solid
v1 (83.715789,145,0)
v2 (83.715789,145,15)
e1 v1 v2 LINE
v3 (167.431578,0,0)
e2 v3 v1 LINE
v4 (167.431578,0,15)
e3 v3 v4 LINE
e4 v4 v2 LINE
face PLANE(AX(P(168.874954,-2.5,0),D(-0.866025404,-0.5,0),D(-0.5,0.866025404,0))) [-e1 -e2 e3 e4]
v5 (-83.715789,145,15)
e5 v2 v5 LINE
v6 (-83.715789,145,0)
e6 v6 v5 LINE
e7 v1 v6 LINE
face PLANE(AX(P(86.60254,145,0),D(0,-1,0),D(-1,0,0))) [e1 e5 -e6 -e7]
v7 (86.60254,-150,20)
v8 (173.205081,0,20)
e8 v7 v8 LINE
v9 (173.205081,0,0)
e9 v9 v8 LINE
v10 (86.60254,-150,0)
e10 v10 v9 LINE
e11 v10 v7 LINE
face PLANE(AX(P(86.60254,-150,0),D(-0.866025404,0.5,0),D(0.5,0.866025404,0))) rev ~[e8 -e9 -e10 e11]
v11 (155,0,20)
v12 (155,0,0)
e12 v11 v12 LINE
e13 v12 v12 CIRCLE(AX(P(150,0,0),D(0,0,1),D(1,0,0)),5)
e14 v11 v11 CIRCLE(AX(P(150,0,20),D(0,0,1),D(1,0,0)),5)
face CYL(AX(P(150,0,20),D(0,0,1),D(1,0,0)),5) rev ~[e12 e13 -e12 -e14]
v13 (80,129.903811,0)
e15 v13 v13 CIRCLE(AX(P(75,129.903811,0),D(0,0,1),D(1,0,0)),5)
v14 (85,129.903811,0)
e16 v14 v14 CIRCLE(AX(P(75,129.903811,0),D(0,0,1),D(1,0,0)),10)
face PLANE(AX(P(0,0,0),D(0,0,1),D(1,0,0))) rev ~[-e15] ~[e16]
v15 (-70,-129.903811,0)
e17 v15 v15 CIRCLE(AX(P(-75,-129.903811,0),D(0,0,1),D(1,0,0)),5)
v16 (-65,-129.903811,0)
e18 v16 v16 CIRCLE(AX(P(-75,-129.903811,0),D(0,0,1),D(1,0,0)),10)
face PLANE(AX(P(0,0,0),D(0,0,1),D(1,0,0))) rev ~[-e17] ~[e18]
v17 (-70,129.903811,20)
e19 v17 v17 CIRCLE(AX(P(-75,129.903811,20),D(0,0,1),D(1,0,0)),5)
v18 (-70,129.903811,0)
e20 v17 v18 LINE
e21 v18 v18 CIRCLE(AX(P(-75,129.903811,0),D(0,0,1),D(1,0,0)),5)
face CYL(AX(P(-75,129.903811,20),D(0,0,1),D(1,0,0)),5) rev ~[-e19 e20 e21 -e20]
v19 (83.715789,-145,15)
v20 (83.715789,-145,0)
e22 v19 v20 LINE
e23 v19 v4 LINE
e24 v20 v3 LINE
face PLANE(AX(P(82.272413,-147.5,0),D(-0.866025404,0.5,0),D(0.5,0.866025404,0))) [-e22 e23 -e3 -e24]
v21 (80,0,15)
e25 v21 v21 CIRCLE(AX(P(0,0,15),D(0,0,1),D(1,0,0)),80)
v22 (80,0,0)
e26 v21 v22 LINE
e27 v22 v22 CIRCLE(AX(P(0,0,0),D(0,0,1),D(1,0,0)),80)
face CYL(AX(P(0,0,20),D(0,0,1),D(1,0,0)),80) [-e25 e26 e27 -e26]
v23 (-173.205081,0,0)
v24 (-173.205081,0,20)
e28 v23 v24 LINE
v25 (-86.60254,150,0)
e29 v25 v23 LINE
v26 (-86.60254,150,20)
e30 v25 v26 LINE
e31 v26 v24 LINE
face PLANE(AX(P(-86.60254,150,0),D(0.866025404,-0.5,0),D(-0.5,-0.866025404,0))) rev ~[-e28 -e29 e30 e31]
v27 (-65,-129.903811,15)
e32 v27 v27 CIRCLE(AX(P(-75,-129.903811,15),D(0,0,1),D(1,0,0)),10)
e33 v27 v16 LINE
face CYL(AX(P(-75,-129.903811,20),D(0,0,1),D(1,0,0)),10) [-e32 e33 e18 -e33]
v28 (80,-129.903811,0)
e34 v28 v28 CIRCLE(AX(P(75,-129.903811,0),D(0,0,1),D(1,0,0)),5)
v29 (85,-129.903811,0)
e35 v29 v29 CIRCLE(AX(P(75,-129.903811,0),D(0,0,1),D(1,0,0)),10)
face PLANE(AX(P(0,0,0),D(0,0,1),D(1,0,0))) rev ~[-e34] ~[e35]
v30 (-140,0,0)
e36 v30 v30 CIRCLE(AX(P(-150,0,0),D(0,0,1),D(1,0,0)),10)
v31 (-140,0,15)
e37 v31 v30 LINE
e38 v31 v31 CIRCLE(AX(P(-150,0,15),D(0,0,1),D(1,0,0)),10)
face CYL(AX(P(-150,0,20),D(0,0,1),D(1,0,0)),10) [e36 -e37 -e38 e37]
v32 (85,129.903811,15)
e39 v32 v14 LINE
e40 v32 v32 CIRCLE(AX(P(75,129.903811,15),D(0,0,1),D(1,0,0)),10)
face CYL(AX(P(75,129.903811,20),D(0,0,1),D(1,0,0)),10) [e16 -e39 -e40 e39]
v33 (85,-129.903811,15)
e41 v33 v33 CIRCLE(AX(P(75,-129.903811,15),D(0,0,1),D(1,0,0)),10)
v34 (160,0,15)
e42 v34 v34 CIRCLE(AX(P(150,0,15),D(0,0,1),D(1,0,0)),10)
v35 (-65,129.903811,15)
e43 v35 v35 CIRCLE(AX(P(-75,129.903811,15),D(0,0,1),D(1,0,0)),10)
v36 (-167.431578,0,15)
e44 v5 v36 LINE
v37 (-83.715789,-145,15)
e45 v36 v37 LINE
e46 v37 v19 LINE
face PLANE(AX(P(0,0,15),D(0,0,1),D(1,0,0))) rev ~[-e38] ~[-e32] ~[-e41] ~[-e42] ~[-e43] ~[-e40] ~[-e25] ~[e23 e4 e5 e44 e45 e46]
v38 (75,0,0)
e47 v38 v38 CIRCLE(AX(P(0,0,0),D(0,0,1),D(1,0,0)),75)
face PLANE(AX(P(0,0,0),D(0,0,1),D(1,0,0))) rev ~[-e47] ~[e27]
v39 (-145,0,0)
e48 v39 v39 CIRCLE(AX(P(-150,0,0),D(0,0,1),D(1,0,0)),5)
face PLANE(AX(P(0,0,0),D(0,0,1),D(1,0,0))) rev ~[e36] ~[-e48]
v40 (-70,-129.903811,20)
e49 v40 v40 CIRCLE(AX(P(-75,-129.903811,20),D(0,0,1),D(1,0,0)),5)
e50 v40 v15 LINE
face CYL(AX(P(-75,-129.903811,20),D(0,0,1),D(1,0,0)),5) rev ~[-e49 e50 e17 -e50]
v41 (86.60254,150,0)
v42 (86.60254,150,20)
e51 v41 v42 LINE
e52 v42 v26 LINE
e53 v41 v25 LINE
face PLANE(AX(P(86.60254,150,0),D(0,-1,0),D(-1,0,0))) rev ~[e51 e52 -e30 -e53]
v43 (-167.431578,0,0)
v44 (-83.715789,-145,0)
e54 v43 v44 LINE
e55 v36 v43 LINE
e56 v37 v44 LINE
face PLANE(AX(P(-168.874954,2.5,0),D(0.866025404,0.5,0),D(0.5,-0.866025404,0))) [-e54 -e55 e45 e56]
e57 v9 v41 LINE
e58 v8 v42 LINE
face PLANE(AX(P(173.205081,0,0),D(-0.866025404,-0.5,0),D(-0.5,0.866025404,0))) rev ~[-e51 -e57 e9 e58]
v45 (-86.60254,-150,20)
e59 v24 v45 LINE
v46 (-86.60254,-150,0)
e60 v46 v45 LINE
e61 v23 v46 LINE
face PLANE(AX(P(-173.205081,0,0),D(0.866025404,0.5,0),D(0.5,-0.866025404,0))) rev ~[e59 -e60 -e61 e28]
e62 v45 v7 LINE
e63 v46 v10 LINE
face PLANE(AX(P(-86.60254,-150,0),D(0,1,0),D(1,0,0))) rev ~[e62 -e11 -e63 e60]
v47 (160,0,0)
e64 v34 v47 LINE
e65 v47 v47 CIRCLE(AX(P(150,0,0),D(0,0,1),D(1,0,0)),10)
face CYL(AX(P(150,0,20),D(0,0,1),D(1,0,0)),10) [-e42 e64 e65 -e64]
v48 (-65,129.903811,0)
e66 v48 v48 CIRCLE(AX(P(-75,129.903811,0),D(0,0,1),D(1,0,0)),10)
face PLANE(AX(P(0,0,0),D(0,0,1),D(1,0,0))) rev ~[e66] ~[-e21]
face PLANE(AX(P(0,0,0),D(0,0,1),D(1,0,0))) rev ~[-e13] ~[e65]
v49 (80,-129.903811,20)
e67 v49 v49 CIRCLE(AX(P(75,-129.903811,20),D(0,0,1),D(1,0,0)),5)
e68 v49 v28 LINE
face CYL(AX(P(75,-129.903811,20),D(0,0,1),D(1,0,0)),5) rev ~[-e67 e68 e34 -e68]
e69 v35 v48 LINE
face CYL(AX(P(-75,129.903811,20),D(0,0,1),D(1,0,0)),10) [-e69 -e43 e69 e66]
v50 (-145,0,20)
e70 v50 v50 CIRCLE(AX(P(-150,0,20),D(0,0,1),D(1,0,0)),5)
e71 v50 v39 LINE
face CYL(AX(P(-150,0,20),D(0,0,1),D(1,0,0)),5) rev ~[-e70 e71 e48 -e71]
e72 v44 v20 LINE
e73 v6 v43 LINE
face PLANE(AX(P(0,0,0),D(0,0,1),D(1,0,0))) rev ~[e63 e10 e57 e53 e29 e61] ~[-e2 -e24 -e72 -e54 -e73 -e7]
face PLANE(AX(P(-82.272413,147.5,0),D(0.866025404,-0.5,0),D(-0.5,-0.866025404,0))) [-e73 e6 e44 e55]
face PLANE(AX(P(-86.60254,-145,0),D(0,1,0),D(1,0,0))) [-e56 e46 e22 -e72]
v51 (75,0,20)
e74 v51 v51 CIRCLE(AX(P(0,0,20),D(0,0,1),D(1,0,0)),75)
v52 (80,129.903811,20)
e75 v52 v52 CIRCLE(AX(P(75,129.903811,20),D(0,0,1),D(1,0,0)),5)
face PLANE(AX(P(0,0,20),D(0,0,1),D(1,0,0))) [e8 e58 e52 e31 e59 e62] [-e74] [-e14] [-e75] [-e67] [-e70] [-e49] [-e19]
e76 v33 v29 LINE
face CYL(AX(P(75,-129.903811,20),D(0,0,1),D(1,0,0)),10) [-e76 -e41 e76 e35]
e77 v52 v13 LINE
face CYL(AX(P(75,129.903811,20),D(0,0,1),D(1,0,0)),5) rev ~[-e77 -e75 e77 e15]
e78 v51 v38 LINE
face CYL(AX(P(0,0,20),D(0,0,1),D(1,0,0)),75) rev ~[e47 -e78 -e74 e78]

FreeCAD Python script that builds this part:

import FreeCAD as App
import Part
import Sketcher
from FreeCAD import Vector
Q = App.Units.Quantity


def faces_at(feature, points):
    """Names of the faces that lie closest to the given points."""
    faces = feature.Shape.Faces
    near = lambda p: min(range(len(faces)), key=lambda i: faces[i].distToShape(Part.Vertex(*p))[0])
    return sorted({f"Face{near(p) + 1}" for p in points})

doc = App.newDocument("Part")
params = doc.addObject("Spreadsheet::Sheet", "Params")
for row, (alias, value) in enumerate([
    ("pad1_length", "20 mm"),
    ("sketch2_diameter", "150 mm"),
    ("sketch3_diameter", "10 mm"),
    ("sketch4_diameter", "10 mm"),
    ("pocket3_length", "25 mm"),
    ("thickness_wall", "5 mm"),
], start=1):
    params.set(f"A{row}", alias)
    params.set(f"B{row}", "=" + value)
    params.setAlias(f"B{row}", alias)

body = doc.addObject("PartDesign::Body", "Body")

# Sketch on XY plane
sketch1 = body.newObject("Sketcher::SketchObject", "Sketch")
sketch1.AttachmentSupport = (doc.getObject("XY_Plane"), [""])
sketch1.MapMode = "FlatFace"
sketch1.addGeometry(Part.LineSegment(Vector(87, -150, 0), Vector(173, 0, 0)), False)
sketch1.addGeometry(Part.LineSegment(Vector(173, 0, 0), Vector(87, 150, 0)), False)
sketch1.addGeometry(Part.LineSegment(Vector(87, 150, 0), Vector(-87, 150, 0)), False)
sketch1.addGeometry(Part.LineSegment(Vector(-87, 150, 0), Vector(-173, 0, 0)), False)
sketch1.addGeometry(Part.LineSegment(Vector(-173, 0, 0), Vector(-87, -150, 0)), False)
sketch1.addGeometry(Part.LineSegment(Vector(-87, -150, 0), Vector(87, -150, 0)), False)
sketch1.addConstraint(Sketcher.Constraint("Coincident", 0, 2, 1, 1))
sketch1.addConstraint(Sketcher.Constraint("Coincident", 1, 2, 2, 1))
sketch1.addConstraint(Sketcher.Constraint("Coincident", 2, 2, 3, 1))
sketch1.addConstraint(Sketcher.Constraint("Coincident", 3, 2, 4, 1))
sketch1.addConstraint(Sketcher.Constraint("Coincident", 4, 2, 5, 1))
sketch1.addConstraint(Sketcher.Constraint("Coincident", 5, 2, 0, 1))
sketch1.addConstraint(Sketcher.Constraint("Horizontal", 2))
sketch1.addConstraint(Sketcher.Constraint("Horizontal", 5))
sketch1.addConstraint(Sketcher.Constraint("Symmetric", 0, 2, 3, 2, -1, 1))
sketch1.addConstraint(Sketcher.Constraint("Symmetric", 1, 2, 4, 2, -1, 1))
sketch1.addConstraint(Sketcher.Constraint("PointOnObject", 0, 2, -1))
sketch1.addConstraint(Sketcher.Constraint("Parallel", 0, 3))
sketch1.addConstraint(Sketcher.Constraint("Vertical", 2, 2, 4, 2))
sketch1.addConstraint(Sketcher.Constraint("Angle", 0, Q("60 deg")))
sketch1.addConstraint(Sketcher.Constraint("DistanceY", -1, 1, 1, 2, 150.0))
sketch1.addConstraint(Sketcher.Constraint("DistanceX", 2, 2, 2, 1, 173.205081))
pad1 = body.newObject("PartDesign::Pad", "Pad")
pad1.Profile = sketch1
pad1.setExpression("Length", "Params.pad1_length")

# Sketch on XY plane
sketch2 = body.newObject("Sketcher::SketchObject", "Sketch001")
sketch2.AttachmentSupport = (doc.getObject("XY_Plane"), [""])
sketch2.MapMode = "FlatFace"
sketch2.AttachmentOffset = App.Placement(Vector(0, 0, 20), App.Rotation())
sketch2.addGeometry(Part.Circle(Vector(0, 0, 0), Vector(0, 0, 1), 75), False)
sketch2.addConstraint(Sketcher.Constraint("Coincident", 0, 3, -1, 1))
sketch2.addConstraint(Sketcher.Constraint("Diameter", 0, 150.0))
sketch2.setExpression("Constraints[1]", "Params.sketch2_diameter")
pocket1 = body.newObject("PartDesign::Pocket", "Pocket")
pocket1.Profile = sketch2
pocket1.Type = "ThroughAll"

# Sketch on XY plane
sketch3 = body.newObject("Sketcher::SketchObject", "Sketch002")
sketch3.AttachmentSupport = (doc.getObject("XY_Plane"), [""])
sketch3.MapMode = "FlatFace"
sketch3.AttachmentOffset = App.Placement(Vector(0, 0, 20), App.Rotation())
sketch3.addGeometry(Part.Circle(Vector(75, 130, 0), Vector(0, 0, 1), 5), False)
sketch3.addGeometry(Part.Circle(Vector(-75, -130, 0), Vector(0, 0, 1), 5), False)
sketch3.addGeometry(Part.Circle(Vector(-150, 0, 0), Vector(0, 0, 1), 5), False)
sketch3.addGeometry(Part.Circle(Vector(150, 0, 0), Vector(0, 0, 1), 5), False)
sketch3.addGeometry(Part.Circle(Vector(75, -130, 0), Vector(0, 0, 1), 5), False)
sketch3.addConstraint(Sketcher.Constraint("Equal", 0, 1))
sketch3.addConstraint(Sketcher.Constraint("Equal", 1, 2))
sketch3.addConstraint(Sketcher.Constraint("Equal", 2, 3))
sketch3.addConstraint(Sketcher.Constraint("Equal", 3, 4))
sketch3.addConstraint(Sketcher.Constraint("Symmetric", 0, 3, 1, 3, -1, 1))
sketch3.addConstraint(Sketcher.Constraint("Symmetric", 2, 3, 3, 3, -1, 1))
sketch3.addConstraint(Sketcher.Constraint("Symmetric", 1, 3, 4, 3, -2))
sketch3.addConstraint(Sketcher.Constraint("PointOnObject", 2, 3, -1))
sketch3.addConstraint(Sketcher.Constraint("Diameter", 0, 10.0))
sketch3.addConstraint(Sketcher.Constraint("DistanceX", -1, 1, 0, 3, 75.0))
sketch3.addConstraint(Sketcher.Constraint("DistanceX", 2, 3, -1, 1, 150.0))
sketch3.addConstraint(Sketcher.Constraint("DistanceY", -1, 1, 0, 3, 129.903811))
sketch3.setExpression("Constraints[8]", "Params.sketch3_diameter")
pocket2 = body.newObject("PartDesign::Pocket", "Pocket001")
pocket2.Profile = sketch3
pocket2.Type = "ThroughAll"

# Sketch on XY plane
sketch4 = body.newObject("Sketcher::SketchObject", "Sketch003")
sketch4.AttachmentSupport = (doc.getObject("XY_Plane"), [""])
sketch4.MapMode = "FlatFace"
sketch4.AttachmentOffset = App.Placement(Vector(0, 0, 20), App.Rotation())
sketch4.addGeometry(Part.Circle(Vector(-75, 130, 0), Vector(0, 0, 1), 5), False)
sketch4.addGeometry(Part.Circle(Vector(75, 130, 0), Vector(0, 0, 1), 5), False)
sketch4.addGeometry(Part.Circle(Vector(-75, -130, 0), Vector(0, 0, 1), 5), False)
sketch4.addGeometry(Part.Circle(Vector(-150, 0, 0), Vector(0, 0, 1), 5), False)
sketch4.addGeometry(Part.Circle(Vector(150, 0, 0), Vector(0, 0, 1), 5), False)
sketch4.addGeometry(Part.Circle(Vector(75, -130, 0), Vector(0, 0, 1), 5), False)
sketch4.addConstraint(Sketcher.Constraint("Equal", 0, 1))
sketch4.addConstraint(Sketcher.Constraint("Equal", 1, 2))
sketch4.addConstraint(Sketcher.Constraint("Equal", 2, 3))
sketch4.addConstraint(Sketcher.Constraint("Equal", 3, 4))
sketch4.addConstraint(Sketcher.Constraint("Equal", 4, 5))
sketch4.addConstraint(Sketcher.Constraint("Symmetric", 1, 3, 2, 3, -1, 1))
sketch4.addConstraint(Sketcher.Constraint("Symmetric", 3, 3, 4, 3, -1, 1))
sketch4.addConstraint(Sketcher.Constraint("Symmetric", 0, 3, 5, 3, -1, 1))
sketch4.addConstraint(Sketcher.Constraint("Symmetric", 0, 3, 1, 3, -2))
sketch4.addConstraint(Sketcher.Constraint("PointOnObject", 3, 3, -1))
sketch4.addConstraint(Sketcher.Constraint("Diameter", 0, 10.0))
sketch4.addConstraint(Sketcher.Constraint("DistanceX", 0, 3, -1, 1, 75.0))
sketch4.addConstraint(Sketcher.Constraint("DistanceX", 3, 3, -1, 1, 150.0))
sketch4.addConstraint(Sketcher.Constraint("DistanceY", -1, 1, 0, 3, 129.903811))
sketch4.setExpression("Constraints[10]", "Params.sketch4_diameter")
pocket3 = body.newObject("PartDesign::Pocket", "Pocket002")
pocket3.Profile = sketch4
pocket3.setExpression("Length", "Params.pocket3_length")
doc.recompute()

thickness = body.newObject("PartDesign::Thickness", "Thickness")
thickness.Base = (pocket3, faces_at(pocket3, [(-69.282, -60, 0)]))
thickness.setExpression("Value", "Params.thickness_wall")
thickness.Reversed = True
thickness.Join = "Arc"

doc.recompute()
